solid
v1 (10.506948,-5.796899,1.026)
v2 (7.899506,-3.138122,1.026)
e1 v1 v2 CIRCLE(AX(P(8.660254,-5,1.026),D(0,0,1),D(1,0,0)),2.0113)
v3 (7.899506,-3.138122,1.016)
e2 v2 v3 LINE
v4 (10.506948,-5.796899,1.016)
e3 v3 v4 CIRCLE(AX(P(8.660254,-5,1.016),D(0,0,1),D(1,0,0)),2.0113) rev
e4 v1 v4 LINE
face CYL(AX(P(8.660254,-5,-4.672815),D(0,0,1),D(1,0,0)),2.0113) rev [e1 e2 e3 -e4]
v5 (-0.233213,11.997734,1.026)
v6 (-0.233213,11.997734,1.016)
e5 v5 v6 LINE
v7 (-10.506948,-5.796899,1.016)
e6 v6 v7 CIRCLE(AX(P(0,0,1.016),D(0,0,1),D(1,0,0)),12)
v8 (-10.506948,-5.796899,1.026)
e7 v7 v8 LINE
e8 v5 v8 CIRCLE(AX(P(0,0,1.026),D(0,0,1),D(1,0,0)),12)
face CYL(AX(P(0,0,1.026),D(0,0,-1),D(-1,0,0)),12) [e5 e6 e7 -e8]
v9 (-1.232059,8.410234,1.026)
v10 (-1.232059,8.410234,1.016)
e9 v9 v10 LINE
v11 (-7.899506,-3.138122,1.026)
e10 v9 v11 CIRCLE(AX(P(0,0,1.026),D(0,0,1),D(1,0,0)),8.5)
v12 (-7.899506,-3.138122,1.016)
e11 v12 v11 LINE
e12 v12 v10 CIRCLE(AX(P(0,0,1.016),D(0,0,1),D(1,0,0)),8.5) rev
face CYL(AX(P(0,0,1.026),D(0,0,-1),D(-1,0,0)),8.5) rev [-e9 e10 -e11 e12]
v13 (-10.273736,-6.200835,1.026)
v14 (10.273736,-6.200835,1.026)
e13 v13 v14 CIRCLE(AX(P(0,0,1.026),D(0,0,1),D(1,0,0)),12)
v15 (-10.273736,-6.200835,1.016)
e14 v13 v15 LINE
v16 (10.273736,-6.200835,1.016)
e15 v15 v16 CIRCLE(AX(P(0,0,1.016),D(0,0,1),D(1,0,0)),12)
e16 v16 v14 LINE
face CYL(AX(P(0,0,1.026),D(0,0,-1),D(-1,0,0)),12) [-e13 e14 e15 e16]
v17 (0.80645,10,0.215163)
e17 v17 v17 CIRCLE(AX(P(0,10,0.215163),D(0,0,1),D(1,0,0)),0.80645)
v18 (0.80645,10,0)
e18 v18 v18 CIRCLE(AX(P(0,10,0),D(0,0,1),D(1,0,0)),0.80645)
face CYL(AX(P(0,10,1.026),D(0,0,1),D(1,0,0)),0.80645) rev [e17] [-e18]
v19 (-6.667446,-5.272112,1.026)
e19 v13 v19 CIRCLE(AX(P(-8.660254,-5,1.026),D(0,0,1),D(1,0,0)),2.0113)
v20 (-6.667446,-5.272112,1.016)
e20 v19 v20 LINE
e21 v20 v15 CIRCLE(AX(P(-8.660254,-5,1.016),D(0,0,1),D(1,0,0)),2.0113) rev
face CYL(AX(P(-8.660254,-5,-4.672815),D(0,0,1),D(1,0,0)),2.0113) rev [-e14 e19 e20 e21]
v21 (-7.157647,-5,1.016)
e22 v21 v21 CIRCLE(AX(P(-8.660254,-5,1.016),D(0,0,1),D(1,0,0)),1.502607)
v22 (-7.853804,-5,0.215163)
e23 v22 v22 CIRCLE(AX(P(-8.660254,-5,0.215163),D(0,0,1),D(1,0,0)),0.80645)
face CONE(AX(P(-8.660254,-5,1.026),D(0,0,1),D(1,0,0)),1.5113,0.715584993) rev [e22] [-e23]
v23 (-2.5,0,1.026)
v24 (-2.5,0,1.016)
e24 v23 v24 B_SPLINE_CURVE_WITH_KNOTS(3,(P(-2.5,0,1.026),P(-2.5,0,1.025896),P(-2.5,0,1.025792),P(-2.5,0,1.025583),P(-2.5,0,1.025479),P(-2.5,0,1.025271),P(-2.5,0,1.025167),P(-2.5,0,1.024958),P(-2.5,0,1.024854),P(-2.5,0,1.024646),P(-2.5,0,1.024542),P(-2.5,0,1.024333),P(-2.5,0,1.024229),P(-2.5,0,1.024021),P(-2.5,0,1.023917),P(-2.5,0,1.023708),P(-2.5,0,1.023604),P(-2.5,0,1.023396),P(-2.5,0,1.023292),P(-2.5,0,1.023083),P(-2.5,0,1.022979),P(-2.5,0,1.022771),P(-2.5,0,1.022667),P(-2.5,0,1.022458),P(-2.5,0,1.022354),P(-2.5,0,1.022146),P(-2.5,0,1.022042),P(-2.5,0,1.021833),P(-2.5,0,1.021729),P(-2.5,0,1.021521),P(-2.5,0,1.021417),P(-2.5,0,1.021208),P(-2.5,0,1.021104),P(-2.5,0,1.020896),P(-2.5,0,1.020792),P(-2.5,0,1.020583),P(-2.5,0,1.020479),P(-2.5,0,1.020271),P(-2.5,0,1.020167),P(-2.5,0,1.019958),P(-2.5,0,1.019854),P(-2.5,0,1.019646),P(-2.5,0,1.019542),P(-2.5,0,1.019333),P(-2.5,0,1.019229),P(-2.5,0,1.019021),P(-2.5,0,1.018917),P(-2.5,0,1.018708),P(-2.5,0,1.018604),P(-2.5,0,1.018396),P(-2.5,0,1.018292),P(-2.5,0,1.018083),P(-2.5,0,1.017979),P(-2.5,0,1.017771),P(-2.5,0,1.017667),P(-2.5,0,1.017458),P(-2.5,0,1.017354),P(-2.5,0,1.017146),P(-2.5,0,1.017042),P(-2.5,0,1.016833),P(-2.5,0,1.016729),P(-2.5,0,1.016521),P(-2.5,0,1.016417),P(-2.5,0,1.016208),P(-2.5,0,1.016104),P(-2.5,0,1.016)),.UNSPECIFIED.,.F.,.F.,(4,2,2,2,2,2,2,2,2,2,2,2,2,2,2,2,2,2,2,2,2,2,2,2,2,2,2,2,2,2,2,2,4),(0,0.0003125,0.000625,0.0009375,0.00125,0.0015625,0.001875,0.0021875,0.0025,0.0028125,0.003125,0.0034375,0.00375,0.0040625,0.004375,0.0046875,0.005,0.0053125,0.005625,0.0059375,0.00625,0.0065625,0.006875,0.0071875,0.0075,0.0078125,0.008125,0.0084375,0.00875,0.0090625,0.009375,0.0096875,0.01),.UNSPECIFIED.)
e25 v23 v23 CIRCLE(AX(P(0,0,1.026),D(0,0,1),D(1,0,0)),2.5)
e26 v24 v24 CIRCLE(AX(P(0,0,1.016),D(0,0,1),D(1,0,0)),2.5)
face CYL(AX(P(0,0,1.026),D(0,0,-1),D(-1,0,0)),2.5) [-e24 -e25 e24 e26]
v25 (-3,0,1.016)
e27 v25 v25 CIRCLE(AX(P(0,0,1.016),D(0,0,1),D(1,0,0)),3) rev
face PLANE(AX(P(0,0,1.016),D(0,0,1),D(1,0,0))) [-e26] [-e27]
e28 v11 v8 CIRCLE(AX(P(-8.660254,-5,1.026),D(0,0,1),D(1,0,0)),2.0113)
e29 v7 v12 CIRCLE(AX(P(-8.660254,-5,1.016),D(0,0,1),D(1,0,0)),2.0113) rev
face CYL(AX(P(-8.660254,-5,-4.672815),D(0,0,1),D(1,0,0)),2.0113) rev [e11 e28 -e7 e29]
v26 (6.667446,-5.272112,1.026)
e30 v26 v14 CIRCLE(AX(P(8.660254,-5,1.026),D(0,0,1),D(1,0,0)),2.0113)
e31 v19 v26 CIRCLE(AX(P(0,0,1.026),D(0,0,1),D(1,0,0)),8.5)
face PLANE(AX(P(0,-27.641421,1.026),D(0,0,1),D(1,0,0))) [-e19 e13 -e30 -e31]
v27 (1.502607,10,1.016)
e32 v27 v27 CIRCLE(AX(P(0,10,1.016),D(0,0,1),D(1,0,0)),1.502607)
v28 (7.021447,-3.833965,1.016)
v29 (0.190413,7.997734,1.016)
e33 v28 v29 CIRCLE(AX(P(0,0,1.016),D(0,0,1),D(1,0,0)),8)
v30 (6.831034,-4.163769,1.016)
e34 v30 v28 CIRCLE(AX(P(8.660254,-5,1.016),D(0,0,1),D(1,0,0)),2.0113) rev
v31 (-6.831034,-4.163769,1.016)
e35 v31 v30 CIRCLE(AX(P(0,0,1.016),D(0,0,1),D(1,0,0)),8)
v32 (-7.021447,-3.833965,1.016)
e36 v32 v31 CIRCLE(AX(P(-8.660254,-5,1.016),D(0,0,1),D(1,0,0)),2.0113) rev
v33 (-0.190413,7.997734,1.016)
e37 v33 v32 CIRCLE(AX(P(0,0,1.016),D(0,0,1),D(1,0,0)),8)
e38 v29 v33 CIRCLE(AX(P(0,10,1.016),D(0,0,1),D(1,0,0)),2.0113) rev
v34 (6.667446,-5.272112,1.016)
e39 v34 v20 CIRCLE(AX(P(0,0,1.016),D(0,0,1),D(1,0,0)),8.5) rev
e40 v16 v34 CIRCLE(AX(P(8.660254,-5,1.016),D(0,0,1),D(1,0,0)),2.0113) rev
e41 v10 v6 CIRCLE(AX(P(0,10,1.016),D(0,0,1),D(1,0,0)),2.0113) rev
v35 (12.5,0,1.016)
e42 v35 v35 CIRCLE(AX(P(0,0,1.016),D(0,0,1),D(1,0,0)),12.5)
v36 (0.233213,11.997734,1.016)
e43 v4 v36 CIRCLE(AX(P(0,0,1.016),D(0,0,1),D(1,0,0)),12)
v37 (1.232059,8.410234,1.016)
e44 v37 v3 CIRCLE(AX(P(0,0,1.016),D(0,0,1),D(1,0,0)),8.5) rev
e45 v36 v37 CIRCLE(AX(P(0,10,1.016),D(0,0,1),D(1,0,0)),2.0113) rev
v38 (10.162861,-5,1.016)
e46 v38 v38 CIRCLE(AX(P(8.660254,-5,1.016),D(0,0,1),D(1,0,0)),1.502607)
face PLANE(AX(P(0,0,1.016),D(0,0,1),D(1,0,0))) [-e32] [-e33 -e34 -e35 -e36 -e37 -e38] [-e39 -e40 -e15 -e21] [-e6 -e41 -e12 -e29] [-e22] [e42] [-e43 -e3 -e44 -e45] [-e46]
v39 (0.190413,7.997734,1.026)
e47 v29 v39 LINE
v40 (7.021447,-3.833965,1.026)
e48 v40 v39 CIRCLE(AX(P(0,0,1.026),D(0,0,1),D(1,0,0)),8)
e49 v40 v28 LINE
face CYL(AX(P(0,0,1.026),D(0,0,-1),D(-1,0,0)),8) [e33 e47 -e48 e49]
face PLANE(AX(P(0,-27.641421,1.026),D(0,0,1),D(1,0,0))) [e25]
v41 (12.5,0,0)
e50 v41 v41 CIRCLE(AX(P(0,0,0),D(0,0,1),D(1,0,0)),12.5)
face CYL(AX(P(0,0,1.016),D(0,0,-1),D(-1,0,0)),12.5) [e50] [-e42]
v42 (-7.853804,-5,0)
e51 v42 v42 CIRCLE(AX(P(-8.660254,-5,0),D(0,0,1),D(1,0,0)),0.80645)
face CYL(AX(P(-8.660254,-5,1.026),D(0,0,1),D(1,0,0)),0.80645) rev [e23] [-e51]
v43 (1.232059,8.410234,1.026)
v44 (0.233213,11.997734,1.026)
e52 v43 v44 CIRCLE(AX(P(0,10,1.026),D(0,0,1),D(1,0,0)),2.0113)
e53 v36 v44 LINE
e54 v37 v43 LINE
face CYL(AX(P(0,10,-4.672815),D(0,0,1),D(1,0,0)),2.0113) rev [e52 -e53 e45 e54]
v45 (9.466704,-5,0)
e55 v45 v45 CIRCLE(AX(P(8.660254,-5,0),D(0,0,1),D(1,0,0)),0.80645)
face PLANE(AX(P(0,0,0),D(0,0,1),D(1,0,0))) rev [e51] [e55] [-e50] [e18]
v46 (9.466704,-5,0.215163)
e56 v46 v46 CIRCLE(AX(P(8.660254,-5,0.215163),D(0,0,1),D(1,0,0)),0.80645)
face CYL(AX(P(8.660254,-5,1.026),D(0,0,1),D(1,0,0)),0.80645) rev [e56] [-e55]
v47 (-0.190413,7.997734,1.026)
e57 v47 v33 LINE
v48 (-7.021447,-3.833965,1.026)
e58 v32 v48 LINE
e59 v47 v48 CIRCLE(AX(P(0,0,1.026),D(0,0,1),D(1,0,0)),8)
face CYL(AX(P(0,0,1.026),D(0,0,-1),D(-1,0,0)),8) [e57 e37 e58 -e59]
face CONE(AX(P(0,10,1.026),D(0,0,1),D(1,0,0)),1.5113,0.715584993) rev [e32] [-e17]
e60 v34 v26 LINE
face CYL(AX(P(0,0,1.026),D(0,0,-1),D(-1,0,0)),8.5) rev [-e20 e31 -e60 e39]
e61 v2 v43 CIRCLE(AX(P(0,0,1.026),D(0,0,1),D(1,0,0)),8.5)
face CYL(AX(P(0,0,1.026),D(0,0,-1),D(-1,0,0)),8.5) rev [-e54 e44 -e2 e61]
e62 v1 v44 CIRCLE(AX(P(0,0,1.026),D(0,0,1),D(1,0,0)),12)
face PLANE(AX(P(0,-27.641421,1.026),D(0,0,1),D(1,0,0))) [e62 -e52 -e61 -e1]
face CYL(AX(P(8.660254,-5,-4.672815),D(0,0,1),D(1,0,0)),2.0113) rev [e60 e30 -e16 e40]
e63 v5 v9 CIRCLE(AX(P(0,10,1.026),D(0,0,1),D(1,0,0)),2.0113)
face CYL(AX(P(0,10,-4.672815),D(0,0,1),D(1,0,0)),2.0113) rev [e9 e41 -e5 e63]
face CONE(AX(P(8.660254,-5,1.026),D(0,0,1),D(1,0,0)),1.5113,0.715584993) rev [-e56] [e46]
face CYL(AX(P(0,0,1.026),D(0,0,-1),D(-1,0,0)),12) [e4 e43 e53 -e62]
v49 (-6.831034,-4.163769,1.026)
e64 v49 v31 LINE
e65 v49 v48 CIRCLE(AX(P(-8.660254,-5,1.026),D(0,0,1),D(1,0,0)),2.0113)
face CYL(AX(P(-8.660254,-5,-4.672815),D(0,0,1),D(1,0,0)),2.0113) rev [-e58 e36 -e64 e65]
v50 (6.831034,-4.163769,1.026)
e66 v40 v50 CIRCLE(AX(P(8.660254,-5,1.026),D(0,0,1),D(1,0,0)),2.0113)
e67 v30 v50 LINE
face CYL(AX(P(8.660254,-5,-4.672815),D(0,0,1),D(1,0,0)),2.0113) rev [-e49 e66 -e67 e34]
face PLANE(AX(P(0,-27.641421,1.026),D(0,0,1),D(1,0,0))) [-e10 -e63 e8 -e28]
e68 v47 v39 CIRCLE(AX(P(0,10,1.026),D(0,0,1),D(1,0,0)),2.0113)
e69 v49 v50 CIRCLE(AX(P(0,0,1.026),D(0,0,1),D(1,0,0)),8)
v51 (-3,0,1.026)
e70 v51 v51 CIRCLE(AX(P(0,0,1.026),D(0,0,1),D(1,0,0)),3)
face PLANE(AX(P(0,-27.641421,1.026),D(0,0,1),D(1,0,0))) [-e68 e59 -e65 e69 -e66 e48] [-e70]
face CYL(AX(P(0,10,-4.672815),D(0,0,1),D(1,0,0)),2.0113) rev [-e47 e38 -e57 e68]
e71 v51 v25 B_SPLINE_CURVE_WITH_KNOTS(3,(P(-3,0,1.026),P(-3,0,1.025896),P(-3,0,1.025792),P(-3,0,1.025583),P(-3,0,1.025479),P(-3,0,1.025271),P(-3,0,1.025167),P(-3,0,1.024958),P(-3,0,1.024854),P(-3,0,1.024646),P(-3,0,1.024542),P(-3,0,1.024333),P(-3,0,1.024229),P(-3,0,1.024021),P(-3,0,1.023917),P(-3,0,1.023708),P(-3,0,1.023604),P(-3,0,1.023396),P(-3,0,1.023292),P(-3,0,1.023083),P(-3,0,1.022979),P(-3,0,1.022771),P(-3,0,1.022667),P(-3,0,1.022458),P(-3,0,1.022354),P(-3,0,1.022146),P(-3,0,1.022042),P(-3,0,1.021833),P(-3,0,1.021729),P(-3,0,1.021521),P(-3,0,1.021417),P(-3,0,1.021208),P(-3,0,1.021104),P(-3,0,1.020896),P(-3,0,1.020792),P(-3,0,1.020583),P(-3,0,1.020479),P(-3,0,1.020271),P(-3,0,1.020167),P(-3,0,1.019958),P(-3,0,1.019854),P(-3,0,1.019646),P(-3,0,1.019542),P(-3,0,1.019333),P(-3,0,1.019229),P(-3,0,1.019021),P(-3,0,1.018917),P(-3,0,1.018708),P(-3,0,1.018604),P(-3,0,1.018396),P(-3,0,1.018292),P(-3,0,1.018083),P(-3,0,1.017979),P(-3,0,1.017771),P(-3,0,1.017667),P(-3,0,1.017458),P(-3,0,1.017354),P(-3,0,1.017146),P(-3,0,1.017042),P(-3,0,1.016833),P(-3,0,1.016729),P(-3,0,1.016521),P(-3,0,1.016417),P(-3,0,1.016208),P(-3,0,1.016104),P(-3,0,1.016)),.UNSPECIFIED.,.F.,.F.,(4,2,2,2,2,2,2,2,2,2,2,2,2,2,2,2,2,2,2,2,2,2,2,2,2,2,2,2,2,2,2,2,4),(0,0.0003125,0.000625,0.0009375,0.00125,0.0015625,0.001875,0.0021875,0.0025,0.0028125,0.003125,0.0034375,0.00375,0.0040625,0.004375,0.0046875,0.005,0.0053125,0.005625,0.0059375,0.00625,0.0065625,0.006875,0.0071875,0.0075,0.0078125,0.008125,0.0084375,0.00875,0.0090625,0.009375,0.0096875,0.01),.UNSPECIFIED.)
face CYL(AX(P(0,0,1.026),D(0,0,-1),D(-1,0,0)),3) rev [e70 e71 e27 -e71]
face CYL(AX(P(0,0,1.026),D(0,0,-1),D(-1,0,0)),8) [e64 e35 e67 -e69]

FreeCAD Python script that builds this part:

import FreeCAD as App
import Part
import Sketcher

V = App.Vector
Q = App.Units.Quantity

doc = App.newDocument("Part")
body = doc.addObject("PartDesign::Body", "Body")

sketch1 = body.newObject("Sketcher::SketchObject", "Sketch")
sketch1.AttachmentSupport = (doc.getObject("XY_Plane"), [""])
sketch1.MapMode = "FlatFace"
sketch1.addGeometry(Part.Circle(V(0, 0, 0), V(0, 0, 1), 12.5), False)
sketch1.addConstraint([
    Sketcher.Constraint("Coincident", 0, 3, -1, 1),
    Sketcher.Constraint("Diameter", 0, Q("25 mm")),
])
pad1 = body.newObject("PartDesign::Pad", "Pad")
pad1.Profile = sketch1
pad1.Length = 1.016

sketch2 = body.newObject("Sketcher::SketchObject", "Sketch001")
sketch2.AttachmentSupport = (doc.getObject("XY_Plane"), [""])
sketch2.MapMode = "FlatFace"
sketch2.AttachmentOffset = App.Placement(V(0, 0, 1.016), App.Rotation())
sketch2.addGeometry([
    Part.Circle(V(0, 0, 0), V(0, 0, 1), 12),
    Part.Circle(V(0, 0, 0), V(0, 0, 1), 8.5),
    Part.Circle(V(0, 0, 0), V(0, 0, 1), 8),
    Part.Circle(V(0, 0, 0), V(0, 0, 1), 3),
    Part.Circle(V(0, 0, 0), V(0, 0, 1), 2.5),
], False)
sketch2.addConstraint([
    Sketcher.Constraint("Coincident", 0, 3, -1, 1),
    Sketcher.Constraint("Coincident", 1, 3, -1, 1),
    Sketcher.Constraint("Coincident", 2, 3, -1, 1),
    Sketcher.Constraint("Coincident", 3, 3, -1, 1),
    Sketcher.Constraint("Coincident", 4, 3, -1, 1),
    Sketcher.Constraint("Diameter", 0, Q("24 mm")),
    Sketcher.Constraint("Diameter", 1, Q("17 mm")),
    Sketcher.Constraint("Diameter", 2, Q("16 mm")),
    Sketcher.Constraint("Diameter", 3, Q("6 mm")),
    Sketcher.Constraint("Diameter", 4, Q("5 mm")),
])
pad2 = body.newObject("PartDesign::Pad", "Pad001")
pad2.Profile = sketch2
pad2.Length = 0.01

sketch3 = body.newObject("Sketcher::SketchObject", "Sketch002")
sketch3.AttachmentSupport = (doc.getObject("YZ_Plane"), [""])
sketch3.MapMode = "FlatFace"
sketch3.addGeometry([
    Part.LineSegment(V(10, 0, 0), V(10, 1.026, 0)),
    Part.LineSegment(V(10, 1.026, 0), V(8.4887, 1.026, 0)),
    Part.LineSegment(V(8.4887, 1.026, 0), V(9.19355, 0.215163, 0)),
    Part.LineSegment(V(9.19355, 0.215163, 0), V(9.19355, 0, 0)),
    Part.LineSegment(V(9.19355, 0, 0), V(10, 0, 0)),
], False)
sketch3.addGeometry(Part.LineSegment(V(10, 1.026, 0), V(10, 0, 0)), True)
sketch3.addConstraint([
    Sketcher.Constraint("Coincident", 0, 2, 1, 1),
    Sketcher.Constraint("Coincident", 1, 2, 2, 1),
    Sketcher.Constraint("Coincident", 2, 2, 3, 1),
    Sketcher.Constraint("Coincident", 3, 2, 4, 1),
    Sketcher.Constraint("Coincident", 4, 2, 0, 1),
    Sketcher.Constraint("Vertical", 0),
    Sketcher.Constraint("Horizontal", 1),
    Sketcher.Constraint("Vertical", 3),
    Sketcher.Constraint("Horizontal", 4),
    Sketcher.Constraint("Vertical", 5),
    Sketcher.Constraint("Coincident", 5, 1, 0, 2),
    Sketcher.Constraint("PointOnObject", 3, 2, -1),
    Sketcher.Constraint("PointOnObject", 5, 2, -1),
    Sketcher.Constraint("Angle", 2, Q("-49 deg")),
    Sketcher.Constraint("DistanceX", -1, 1, 0, 2, Q("10 mm")),
    Sketcher.Constraint("DistanceY", 0, 1, 0, 2, Q("1.026 mm")),
    Sketcher.Constraint("DistanceX", 1, 2, 1, 1, Q("1.5113 mm")),
    Sketcher.Constraint("DistanceX", 4, 1, 4, 2, Q("0.80645 mm")),
])
groove = body.newObject("PartDesign::Groove", "Groove")
groove.Profile = sketch3
groove.ReferenceAxis = (sketch3, ["Axis0"])
groove.Angle = 360
doc.recompute()

polarpattern = body.newObject("PartDesign::PolarPattern", "PolarPattern")
polarpattern.Originals = [groove]
polarpattern.Axis = (doc.getObject("Z_Axis"), [""])
polarpattern.Angle = 360
polarpattern.Occurrences = 3
body.Tip = polarpattern

sketch4 = body.newObject("Sketcher::SketchObject", "Sketch003")
sketch4.AttachmentSupport = (doc.getObject("XY_Plane"), [""])
sketch4.MapMode = "FlatFace"
sketch4.AttachmentOffset = App.Placement(V(0, 0, 1.026), App.Rotation())
sketch4.addGeometry([
    Part.Circle(V(0, 10, 0), V(0, 0, 1), 2.0113),
    Part.Circle(V(-8.660254, -5, 0), V(0, 0, 1), 2.0113),
    Part.Circle(V(8.660254, -5, 0), V(0, 0, 1), 2.0113),
], False)
sketch4.addConstraint([
    Sketcher.Constraint("Equal", 0, 1),
    Sketcher.Constraint("Equal", 1, 2),
    Sketcher.Constraint("Symmetric", 1, 3, 2, 3, -2),
    Sketcher.Constraint("PointOnObject", 0, 3, -2),
    Sketcher.Constraint("DistanceY", -1, 1, 0, 3, Q("10 mm")),
    Sketcher.Constraint("DistanceY", 1, 3, -1, 1, Q("5 mm")),
    Sketcher.Constraint("Diameter", 0, Q("4.0226 mm")),
    Sketcher.Constraint("DistanceX", 1, 3, 2, 3, Q("17.320508 mm")),
])
pocket1 = body.newObject("PartDesign::Pocket", "Pocket")
pocket1.Profile = sketch4
pocket1.Length = 0.01

doc.recompute()
